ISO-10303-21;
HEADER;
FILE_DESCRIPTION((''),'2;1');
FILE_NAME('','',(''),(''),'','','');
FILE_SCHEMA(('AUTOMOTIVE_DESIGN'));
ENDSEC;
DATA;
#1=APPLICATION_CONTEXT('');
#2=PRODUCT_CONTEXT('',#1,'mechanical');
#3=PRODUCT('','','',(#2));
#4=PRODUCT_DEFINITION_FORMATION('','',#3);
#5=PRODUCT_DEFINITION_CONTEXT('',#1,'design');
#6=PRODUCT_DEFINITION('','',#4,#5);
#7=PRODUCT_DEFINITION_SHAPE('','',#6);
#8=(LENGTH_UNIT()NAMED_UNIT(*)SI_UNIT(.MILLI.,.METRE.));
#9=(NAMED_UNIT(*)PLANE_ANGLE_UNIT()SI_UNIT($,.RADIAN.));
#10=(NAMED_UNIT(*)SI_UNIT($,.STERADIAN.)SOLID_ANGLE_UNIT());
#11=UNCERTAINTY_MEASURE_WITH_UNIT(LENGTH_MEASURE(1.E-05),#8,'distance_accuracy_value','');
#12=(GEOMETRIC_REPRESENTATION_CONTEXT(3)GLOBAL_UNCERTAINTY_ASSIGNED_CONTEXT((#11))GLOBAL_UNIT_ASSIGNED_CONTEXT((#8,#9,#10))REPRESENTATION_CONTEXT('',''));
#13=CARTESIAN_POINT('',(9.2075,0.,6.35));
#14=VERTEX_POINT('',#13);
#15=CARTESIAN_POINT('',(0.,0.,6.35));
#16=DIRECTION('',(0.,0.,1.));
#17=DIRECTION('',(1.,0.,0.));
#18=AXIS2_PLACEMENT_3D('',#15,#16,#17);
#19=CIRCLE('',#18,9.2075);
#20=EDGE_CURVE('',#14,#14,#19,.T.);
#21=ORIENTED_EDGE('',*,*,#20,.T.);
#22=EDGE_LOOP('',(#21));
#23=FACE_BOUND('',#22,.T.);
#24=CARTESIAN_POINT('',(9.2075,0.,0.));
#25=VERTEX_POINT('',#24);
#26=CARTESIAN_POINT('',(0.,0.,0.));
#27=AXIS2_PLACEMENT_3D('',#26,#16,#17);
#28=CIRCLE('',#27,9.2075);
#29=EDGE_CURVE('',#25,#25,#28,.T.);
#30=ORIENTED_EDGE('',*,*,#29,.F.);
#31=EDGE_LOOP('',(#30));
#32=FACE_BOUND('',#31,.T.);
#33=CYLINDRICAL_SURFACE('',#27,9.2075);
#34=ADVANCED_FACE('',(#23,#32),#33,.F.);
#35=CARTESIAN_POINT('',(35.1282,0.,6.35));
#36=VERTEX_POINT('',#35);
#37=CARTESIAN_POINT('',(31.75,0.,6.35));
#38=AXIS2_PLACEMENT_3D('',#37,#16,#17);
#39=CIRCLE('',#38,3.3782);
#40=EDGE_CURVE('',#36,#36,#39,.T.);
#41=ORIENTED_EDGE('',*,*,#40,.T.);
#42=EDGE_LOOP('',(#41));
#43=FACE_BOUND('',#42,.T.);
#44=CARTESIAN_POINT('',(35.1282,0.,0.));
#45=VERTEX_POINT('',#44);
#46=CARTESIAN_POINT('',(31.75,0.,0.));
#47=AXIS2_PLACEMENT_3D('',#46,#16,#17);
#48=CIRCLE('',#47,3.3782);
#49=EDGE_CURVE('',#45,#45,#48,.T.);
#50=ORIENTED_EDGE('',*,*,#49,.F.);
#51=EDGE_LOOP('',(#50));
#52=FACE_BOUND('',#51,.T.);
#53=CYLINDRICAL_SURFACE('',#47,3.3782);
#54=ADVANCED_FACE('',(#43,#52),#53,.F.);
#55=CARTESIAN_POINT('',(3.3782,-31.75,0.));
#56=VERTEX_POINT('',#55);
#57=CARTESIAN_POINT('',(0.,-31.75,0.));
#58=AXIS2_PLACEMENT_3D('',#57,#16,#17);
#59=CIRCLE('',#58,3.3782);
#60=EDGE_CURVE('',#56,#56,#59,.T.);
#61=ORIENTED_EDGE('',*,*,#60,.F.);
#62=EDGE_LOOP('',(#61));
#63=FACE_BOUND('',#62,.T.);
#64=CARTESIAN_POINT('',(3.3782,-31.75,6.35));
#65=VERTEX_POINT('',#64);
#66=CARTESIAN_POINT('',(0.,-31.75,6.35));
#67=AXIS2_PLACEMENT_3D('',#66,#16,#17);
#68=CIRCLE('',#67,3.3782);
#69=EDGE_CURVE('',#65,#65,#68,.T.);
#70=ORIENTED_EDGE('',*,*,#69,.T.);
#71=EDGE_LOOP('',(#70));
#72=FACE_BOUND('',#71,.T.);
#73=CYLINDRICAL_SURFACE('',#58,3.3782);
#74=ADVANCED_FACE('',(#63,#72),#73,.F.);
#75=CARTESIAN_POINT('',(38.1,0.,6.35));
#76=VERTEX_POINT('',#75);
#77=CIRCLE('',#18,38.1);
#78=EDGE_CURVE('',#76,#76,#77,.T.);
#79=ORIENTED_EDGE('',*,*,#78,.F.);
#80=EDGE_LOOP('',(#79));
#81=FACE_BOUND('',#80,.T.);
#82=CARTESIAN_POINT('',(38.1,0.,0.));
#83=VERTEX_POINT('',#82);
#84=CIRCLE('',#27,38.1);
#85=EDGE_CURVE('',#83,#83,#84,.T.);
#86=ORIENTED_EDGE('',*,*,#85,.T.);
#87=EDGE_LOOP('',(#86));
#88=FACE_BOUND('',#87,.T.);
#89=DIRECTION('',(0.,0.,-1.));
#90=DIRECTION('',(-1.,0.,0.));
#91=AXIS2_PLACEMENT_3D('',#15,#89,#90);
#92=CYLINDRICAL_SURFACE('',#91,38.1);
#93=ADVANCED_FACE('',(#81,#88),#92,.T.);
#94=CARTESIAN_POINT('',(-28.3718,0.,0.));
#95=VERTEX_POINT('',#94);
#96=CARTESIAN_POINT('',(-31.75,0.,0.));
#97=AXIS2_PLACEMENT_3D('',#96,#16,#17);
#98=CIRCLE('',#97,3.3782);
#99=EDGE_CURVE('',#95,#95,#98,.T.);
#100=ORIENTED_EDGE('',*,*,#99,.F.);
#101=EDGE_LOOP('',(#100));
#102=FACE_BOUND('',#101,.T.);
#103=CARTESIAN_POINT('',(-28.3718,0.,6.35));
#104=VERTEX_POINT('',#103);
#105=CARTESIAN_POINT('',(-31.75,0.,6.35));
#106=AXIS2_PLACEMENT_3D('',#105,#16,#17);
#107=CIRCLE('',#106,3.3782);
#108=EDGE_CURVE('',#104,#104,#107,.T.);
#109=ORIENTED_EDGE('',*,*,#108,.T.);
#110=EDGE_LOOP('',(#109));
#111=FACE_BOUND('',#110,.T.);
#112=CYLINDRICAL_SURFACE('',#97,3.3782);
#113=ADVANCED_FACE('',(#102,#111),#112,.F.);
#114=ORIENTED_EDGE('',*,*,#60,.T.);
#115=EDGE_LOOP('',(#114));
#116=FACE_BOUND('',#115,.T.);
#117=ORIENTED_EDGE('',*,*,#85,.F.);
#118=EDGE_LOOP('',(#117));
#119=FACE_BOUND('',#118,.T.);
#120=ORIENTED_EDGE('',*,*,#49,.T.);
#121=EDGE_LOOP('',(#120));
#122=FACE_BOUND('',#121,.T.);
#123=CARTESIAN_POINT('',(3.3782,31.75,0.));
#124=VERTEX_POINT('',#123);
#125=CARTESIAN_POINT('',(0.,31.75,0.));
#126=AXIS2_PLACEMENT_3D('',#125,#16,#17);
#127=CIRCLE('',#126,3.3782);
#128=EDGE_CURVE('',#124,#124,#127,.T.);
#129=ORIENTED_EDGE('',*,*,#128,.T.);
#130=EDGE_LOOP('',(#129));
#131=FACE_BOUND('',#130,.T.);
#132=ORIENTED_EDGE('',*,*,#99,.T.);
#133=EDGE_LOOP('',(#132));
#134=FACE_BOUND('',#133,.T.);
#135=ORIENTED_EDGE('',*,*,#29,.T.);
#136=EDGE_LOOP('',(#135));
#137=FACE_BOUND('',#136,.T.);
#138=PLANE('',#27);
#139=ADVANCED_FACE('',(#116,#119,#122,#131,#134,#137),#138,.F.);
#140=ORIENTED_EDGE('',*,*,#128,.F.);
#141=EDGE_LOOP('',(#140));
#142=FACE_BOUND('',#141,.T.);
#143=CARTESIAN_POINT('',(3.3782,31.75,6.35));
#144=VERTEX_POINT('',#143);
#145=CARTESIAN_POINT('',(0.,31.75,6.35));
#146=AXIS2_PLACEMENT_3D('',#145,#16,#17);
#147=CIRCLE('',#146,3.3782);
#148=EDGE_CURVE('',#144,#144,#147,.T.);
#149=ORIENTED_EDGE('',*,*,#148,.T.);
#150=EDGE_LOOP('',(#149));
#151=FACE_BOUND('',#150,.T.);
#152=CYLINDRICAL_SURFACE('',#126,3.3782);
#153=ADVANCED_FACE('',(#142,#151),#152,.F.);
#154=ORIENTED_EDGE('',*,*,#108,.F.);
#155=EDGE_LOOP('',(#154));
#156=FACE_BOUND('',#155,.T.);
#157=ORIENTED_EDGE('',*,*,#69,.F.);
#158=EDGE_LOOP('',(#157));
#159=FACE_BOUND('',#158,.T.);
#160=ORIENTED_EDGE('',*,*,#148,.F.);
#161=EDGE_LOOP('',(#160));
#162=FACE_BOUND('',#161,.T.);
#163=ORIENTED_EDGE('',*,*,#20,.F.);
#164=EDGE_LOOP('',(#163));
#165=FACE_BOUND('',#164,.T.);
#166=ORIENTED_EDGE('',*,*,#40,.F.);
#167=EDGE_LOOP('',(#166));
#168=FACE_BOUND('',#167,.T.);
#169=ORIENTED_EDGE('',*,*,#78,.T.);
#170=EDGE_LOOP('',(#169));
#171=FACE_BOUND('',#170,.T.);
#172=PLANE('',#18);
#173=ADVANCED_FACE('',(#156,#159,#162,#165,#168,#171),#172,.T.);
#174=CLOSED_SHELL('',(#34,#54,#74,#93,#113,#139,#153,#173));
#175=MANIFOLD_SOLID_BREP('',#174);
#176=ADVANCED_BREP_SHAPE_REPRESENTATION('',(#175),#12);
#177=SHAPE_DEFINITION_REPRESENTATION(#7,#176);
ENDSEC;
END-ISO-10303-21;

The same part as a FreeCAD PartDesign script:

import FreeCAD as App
import Part
import Sketcher
from FreeCAD import Vector
Q = App.Units.Quantity

doc = App.newDocument("Part")
body = doc.addObject("PartDesign::Body", "Body")

# Sketch on XY plane
sketch1 = doc.addObject("Sketcher::SketchObject", "Sketch")
body.addObject(sketch1)
sketch1.AttachmentSupport = (doc.XY_Plane, [""])
sketch1.MapMode = "FlatFace"
sketch1.addGeometry(Part.Circle(Vector(0, 0, 0), Vector(0, 0, 1), 38.1), False)
sketch1.addConstraint([
    Sketcher.Constraint("Coincident", 0, 3, -1, 1),
    Sketcher.Constraint("Diameter", 0, Q("3 in")),
])
pad1 = doc.addObject("PartDesign::Pad", "Pad")
body.addObject(pad1)
pad1.Profile = sketch1
pad1.Length = Q("0.25 in")

# Sketch on XY plane
sketch2 = doc.addObject("Sketcher::SketchObject", "Sketch001")
body.addObject(sketch2)
sketch2.AttachmentSupport = (doc.XY_Plane, [""])
sketch2.MapMode = "FlatFace"
sketch2.AttachmentOffset = App.Placement(Vector(0, 0, 0.25 * 25.4), App.Rotation())
sketch2.addGeometry([
    Part.Circle(Vector(0, 31.75, 0), Vector(0, 0, 1), 3.3782),
    Part.Circle(Vector(31.75, 0, 0), Vector(0, 0, 1), 3.3782),
    Part.Circle(Vector(0, -31.75, 0), Vector(0, 0, 1), 3.3782),
    Part.Circle(Vector(-31.75, 0, 0), Vector(0, 0, 1), 3.3782),
], False)
sketch2.addConstraint([
    Sketcher.Constraint("Equal", 0, 1),
    Sketcher.Constraint("Equal", 1, 2),
    Sketcher.Constraint("Equal", 2, 3),
    Sketcher.Constraint("Symmetric", 0, 3, 2, 3, -1, 1),
    Sketcher.Constraint("Symmetric", 1, 3, 3, 3, -1, 1),
    Sketcher.Constraint("PointOnObject", 0, 3, -2),
    Sketcher.Constraint("PointOnObject", 1, 3, -1),
    Sketcher.Constraint("Diameter", 0, Q("0.266 in")),
    Sketcher.Constraint("DistanceY", 2, 3, 0, 3, Q("2.5 in")),
    Sketcher.Constraint("DistanceX", 3, 3, 1, 3, Q("2.5 in")),
])
pocket1 = doc.addObject("PartDesign::Pocket", "Pocket")
body.addObject(pocket1)
pocket1.Profile = sketch2
pocket1.Length = Q("0.25 in")

# Sketch on XY plane
sketch3 = doc.addObject("Sketcher::SketchObject", "Sketch002")
body.addObject(sketch3)
sketch3.AttachmentSupport = (doc.XY_Plane, [""])
sketch3.MapMode = "FlatFace"
sketch3.AttachmentOffset = App.Placement(Vector(0, 0, 0.25 * 25.4), App.Rotation())
sketch3.addGeometry(Part.Circle(Vector(0, 0, 0), Vector(0, 0, 1), 9.2075), False)
sketch3.addConstraint([
    Sketcher.Constraint("Coincident", 0, 3, -1, 1),
    Sketcher.Constraint("Diameter", 0, Q("0.725 in")),
])
pocket2 = doc.addObject("PartDesign::Pocket", "Pocket001")
body.addObject(pocket2)
pocket2.Profile = sketch3
pocket2.Length = Q("0.25 in")

doc.recompute()
